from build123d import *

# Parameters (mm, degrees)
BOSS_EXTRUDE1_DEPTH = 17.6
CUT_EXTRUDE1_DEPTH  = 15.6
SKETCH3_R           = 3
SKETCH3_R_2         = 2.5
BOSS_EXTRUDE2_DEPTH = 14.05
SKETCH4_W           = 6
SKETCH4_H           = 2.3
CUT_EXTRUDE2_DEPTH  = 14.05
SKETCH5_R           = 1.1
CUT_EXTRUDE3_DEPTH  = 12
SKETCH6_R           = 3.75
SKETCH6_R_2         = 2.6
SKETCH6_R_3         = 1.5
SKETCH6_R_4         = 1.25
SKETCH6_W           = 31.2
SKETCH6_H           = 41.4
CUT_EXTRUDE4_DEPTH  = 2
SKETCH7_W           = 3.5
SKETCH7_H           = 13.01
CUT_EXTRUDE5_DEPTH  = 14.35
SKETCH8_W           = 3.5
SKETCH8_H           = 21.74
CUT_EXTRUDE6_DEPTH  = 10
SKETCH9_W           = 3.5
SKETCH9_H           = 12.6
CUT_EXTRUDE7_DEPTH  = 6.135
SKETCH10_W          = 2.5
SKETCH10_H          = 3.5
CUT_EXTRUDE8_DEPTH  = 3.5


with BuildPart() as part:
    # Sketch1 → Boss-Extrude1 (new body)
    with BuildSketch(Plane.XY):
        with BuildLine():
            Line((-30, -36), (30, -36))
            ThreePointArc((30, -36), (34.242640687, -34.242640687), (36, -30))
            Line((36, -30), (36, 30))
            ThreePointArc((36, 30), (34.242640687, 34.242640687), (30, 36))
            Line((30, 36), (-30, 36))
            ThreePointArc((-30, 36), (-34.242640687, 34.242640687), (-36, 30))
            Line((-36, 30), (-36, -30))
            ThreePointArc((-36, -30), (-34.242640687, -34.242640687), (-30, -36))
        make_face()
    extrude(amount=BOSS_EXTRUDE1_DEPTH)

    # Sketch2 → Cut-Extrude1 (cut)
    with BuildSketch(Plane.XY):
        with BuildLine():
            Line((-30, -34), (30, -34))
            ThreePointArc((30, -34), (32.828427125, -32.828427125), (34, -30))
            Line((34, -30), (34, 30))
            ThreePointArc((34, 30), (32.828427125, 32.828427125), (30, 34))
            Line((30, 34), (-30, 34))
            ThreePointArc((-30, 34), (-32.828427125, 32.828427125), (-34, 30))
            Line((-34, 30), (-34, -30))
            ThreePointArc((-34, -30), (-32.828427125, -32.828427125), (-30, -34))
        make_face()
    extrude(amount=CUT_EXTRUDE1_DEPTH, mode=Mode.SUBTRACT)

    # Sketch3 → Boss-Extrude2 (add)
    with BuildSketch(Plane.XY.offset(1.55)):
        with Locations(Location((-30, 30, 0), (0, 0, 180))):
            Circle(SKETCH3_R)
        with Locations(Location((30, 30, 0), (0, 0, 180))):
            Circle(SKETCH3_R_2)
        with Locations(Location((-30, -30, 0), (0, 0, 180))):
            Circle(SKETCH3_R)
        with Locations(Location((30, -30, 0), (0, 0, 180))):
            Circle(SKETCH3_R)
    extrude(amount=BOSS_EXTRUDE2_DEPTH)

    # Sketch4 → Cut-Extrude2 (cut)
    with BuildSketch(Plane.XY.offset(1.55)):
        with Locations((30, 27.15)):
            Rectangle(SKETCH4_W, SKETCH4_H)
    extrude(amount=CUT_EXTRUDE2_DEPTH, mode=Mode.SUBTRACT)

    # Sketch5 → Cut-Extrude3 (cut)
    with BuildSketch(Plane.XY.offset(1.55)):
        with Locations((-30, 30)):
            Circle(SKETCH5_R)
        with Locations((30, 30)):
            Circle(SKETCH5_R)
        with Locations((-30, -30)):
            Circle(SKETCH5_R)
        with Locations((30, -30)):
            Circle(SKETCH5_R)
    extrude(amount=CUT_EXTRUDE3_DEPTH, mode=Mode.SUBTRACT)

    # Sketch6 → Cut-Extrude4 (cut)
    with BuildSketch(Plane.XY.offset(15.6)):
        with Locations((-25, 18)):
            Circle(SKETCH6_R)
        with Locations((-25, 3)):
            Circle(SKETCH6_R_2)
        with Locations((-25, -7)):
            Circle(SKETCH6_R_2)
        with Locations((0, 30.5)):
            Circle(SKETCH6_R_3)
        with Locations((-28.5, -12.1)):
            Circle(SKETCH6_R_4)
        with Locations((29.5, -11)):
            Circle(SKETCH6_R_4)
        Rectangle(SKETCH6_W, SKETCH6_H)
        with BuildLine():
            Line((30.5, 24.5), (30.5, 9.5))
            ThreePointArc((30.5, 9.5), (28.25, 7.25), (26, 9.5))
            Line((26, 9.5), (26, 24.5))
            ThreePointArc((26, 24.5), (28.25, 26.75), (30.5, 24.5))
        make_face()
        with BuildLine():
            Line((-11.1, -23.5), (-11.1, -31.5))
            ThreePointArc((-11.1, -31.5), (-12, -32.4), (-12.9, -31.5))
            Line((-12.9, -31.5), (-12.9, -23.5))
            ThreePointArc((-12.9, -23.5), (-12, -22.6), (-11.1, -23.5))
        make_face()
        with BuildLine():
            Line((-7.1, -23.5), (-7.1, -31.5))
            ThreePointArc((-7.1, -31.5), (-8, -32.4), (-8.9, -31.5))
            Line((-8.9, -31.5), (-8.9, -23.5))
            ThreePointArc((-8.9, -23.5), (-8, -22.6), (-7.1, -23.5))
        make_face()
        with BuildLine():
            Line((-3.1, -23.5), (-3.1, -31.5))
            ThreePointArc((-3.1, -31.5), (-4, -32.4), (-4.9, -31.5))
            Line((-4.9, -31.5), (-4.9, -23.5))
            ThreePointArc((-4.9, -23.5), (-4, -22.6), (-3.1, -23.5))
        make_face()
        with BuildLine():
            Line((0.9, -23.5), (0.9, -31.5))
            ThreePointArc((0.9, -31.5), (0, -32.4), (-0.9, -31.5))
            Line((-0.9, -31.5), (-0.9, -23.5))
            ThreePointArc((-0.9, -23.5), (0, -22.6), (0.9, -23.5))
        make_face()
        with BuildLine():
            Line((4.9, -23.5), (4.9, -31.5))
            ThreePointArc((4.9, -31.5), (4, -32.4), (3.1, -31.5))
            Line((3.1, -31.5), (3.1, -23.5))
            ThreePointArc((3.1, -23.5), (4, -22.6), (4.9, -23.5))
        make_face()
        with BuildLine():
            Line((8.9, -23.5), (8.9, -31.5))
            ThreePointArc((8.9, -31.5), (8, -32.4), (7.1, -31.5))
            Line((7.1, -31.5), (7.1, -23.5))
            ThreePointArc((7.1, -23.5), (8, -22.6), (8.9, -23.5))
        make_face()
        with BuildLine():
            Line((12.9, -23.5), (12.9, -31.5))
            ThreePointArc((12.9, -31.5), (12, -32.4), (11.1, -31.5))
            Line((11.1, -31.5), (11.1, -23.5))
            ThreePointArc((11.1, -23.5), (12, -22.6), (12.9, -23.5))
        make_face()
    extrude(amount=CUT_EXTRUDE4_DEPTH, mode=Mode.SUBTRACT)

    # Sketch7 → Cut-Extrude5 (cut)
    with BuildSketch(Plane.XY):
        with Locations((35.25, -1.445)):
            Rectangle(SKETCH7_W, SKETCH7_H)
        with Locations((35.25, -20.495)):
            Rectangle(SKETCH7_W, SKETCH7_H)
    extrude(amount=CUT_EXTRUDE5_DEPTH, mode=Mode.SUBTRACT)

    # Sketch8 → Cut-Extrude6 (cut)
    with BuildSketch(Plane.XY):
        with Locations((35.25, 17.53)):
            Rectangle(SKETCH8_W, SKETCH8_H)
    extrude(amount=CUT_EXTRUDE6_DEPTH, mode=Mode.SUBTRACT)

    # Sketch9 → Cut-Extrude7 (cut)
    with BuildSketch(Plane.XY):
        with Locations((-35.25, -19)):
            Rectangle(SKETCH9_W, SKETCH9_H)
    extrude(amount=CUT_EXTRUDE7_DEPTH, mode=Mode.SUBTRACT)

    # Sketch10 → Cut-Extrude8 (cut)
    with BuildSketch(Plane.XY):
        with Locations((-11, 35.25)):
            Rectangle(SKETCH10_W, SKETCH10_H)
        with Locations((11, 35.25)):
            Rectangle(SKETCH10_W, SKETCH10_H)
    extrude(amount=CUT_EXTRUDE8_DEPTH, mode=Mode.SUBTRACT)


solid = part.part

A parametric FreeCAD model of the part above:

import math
import FreeCAD as App
import Part
import Sketcher
Q = App.Units.Quantity


def add_polygon(sketch, points):
    """Adds a closed chain of lines whose ends are joined by coincident constraints."""
    first, n = sketch.GeometryCount, len(points)
    for a, b in zip(points, points[1:] + points[:1]):
        sketch.addGeometry(Part.LineSegment(App.Vector(*a, 0), App.Vector(*b, 0)), False)
    for i in range(n):
        sketch.addConstraint(Sketcher.Constraint("Coincident", first + i, 2, first + (i + 1) % n, 1))

doc = App.newDocument("Part")
body = doc.addObject("PartDesign::Body", "Body")

# Sketch on XY plane
sketch1 = body.newObject("Sketcher::SketchObject", "Sketch")
sketch1.AttachmentSupport = (doc.getObject("XY_Plane"), [""])
sketch1.MapMode = "FlatFace"
sketch1.addGeometry([
    Part.LineSegment(App.Vector(-30, -36, 0), App.Vector(30, -36, 0)),  # 0
    Part.ArcOfCircle(Part.Circle(App.Vector(30, -30, 0), App.Vector(0, 0, 1), 6), math.radians(-90), math.radians(0)),  # 1
    Part.LineSegment(App.Vector(36, -30, 0), App.Vector(36, 30, 0)),  # 2
    Part.ArcOfCircle(Part.Circle(App.Vector(30, 30, 0), App.Vector(0, 0, 1), 6), math.radians(0), math.radians(90)),  # 3
    Part.LineSegment(App.Vector(30, 36, 0), App.Vector(-30, 36, 0)),  # 4
    Part.ArcOfCircle(Part.Circle(App.Vector(-30, 30, 0), App.Vector(0, 0, 1), 6), math.radians(90), math.radians(180)),  # 5
    Part.LineSegment(App.Vector(-36, 30, 0), App.Vector(-36, -30, 0)),  # 6
    Part.ArcOfCircle(Part.Circle(App.Vector(-30, -30, 0), App.Vector(0, 0, 1), 6), math.radians(180), math.radians(270)),  # 7
], False)
sketch1.addConstraint([
    Sketcher.Constraint("Tangent", 0, 2, 1, 1),
    Sketcher.Constraint("Tangent", 1, 2, 2, 1),
    Sketcher.Constraint("Tangent", 2, 2, 3, 1),
    Sketcher.Constraint("Tangent", 3, 2, 4, 1),
    Sketcher.Constraint("Tangent", 4, 2, 5, 1),
    Sketcher.Constraint("Tangent", 5, 2, 6, 1),
    Sketcher.Constraint("Tangent", 6, 2, 7, 1),
    Sketcher.Constraint("Tangent", 7, 2, 0, 1),
    Sketcher.Constraint("Horizontal", 0),
    Sketcher.Constraint("Vertical", 2),
    Sketcher.Constraint("Horizontal", 4),
    Sketcher.Constraint("Vertical", 6),
    Sketcher.Constraint("Equal", 1, 3),
    Sketcher.Constraint("Equal", 3, 5),
    Sketcher.Constraint("Equal", 5, 7),
    Sketcher.Constraint("Symmetric", 1, 3, 5, 3, -1, 1),
    Sketcher.Constraint("Equal", 4, 2),
    Sketcher.Constraint("Radius", 1, Q("6 mm")),
    Sketcher.Constraint("DistanceX", 0, 1, 0, 2, Q("60 mm")),
])
pad1 = body.newObject("PartDesign::Pad", "Pad")
pad1.Profile = sketch1
pad1.Length = 17.6

# Sketch on XY plane
sketch2 = body.newObject("Sketcher::SketchObject", "Sketch001")
sketch2.AttachmentSupport = (doc.getObject("XY_Plane"), [""])
sketch2.MapMode = "FlatFace"
sketch2.addGeometry([
    Part.LineSegment(App.Vector(-30, -34, 0), App.Vector(30, -34, 0)),  # 0
    Part.ArcOfCircle(Part.Circle(App.Vector(30, -30, 0), App.Vector(0, 0, 1), 4), math.radians(-90), math.radians(0)),  # 1
    Part.LineSegment(App.Vector(34, -30, 0), App.Vector(34, 30, 0)),  # 2
    Part.ArcOfCircle(Part.Circle(App.Vector(30, 30, 0), App.Vector(0, 0, 1), 4), math.radians(0), math.radians(90)),  # 3
    Part.LineSegment(App.Vector(30, 34, 0), App.Vector(-30, 34, 0)),  # 4
    Part.ArcOfCircle(Part.Circle(App.Vector(-30, 30, 0), App.Vector(0, 0, 1), 4), math.radians(90), math.radians(180)),  # 5
    Part.LineSegment(App.Vector(-34, 30, 0), App.Vector(-34, -30, 0)),  # 6
    Part.ArcOfCircle(Part.Circle(App.Vector(-30, -30, 0), App.Vector(0, 0, 1), 4), math.radians(180), math.radians(270)),  # 7
], False)
sketch2.addConstraint([
    Sketcher.Constraint("Tangent", 0, 2, 1, 1),
    Sketcher.Constraint("Tangent", 1, 2, 2, 1),
    Sketcher.Constraint("Tangent", 2, 2, 3, 1),
    Sketcher.Constraint("Tangent", 3, 2, 4, 1),
    Sketcher.Constraint("Tangent", 4, 2, 5, 1),
    Sketcher.Constraint("Tangent", 5, 2, 6, 1),
    Sketcher.Constraint("Tangent", 6, 2, 7, 1),
    Sketcher.Constraint("Tangent", 7, 2, 0, 1),
    Sketcher.Constraint("Horizontal", 0),
    Sketcher.Constraint("Vertical", 2),
    Sketcher.Constraint("Horizontal", 4),
    Sketcher.Constraint("Vertical", 6),
    Sketcher.Constraint("Equal", 1, 3),
    Sketcher.Constraint("Equal", 3, 5),
    Sketcher.Constraint("Equal", 5, 7),
    Sketcher.Constraint("Symmetric", 1, 3, 5, 3, -1, 1),
    Sketcher.Constraint("Equal", 4, 2),
    Sketcher.Constraint("Radius", 1, Q("4 mm")),
    Sketcher.Constraint("DistanceX", 0, 1, 0, 2, Q("60 mm")),
])
pocket1 = body.newObject("PartDesign::Pocket", "Pocket")
pocket1.Profile = sketch2
pocket1.Length = 15.6
pocket1.Reversed = True

# Sketch on XY plane
sketch3 = body.newObject("Sketcher::SketchObject", "Sketch002")
sketch3.AttachmentSupport = (doc.getObject("XY_Plane"), [""])
sketch3.MapMode = "FlatFace"
sketch3.AttachmentOffset = App.Placement(App.Vector(0, 0, 1.55), App.Rotation())
sketch3.addGeometry([
    Part.Circle(App.Vector(-30, 30, 0), App.Vector(0, 0, 1), 3),
    Part.Circle(App.Vector(30, 30, 0), App.Vector(0, 0, 1), 2.5),
    Part.Circle(App.Vector(-30, -30, 0), App.Vector(0, 0, 1), 3),
    Part.Circle(App.Vector(30, -30, 0), App.Vector(0, 0, 1), 3),
], False)
sketch3.addConstraint([
    Sketcher.Constraint("Equal", 0, 2),
    Sketcher.Constraint("Equal", 2, 3),
    Sketcher.Constraint("Symmetric", 1, 3, 2, 3, -1, 1),
    Sketcher.Constraint("Symmetric", 0, 3, 3, 3, -1, 1),
    Sketcher.Constraint("Symmetric", 0, 3, 1, 3, -2),
    Sketcher.Constraint("Diameter", 0, Q("6 mm")),
    Sketcher.Constraint("Diameter", 1, Q("5 mm")),
    Sketcher.Constraint("DistanceX", 0, 3, -1, 1, Q("30 mm")),
    Sketcher.Constraint("DistanceY", -1, 1, 0, 3, Q("30 mm")),
])
pad2 = body.newObject("PartDesign::Pad", "Pad001")
pad2.Profile = sketch3
pad2.Length = 14.05

# Sketch on XY plane
sketch4 = body.newObject("Sketcher::SketchObject", "Sketch003")
sketch4.AttachmentSupport = (doc.getObject("XY_Plane"), [""])
sketch4.MapMode = "FlatFace"
sketch4.AttachmentOffset = App.Placement(App.Vector(0, 0, 1.55), App.Rotation())
add_polygon(sketch4, [(27, 28.3), (27, 26), (33, 26), (33, 28.3)])  # lines 0-3
sketch4.addConstraint([
    Sketcher.Constraint("Vertical", 0),
    Sketcher.Constraint("Horizontal", 1),
    Sketcher.Constraint("Vertical", 2),
    Sketcher.Constraint("Horizontal", 3),
    Sketcher.Constraint("DistanceX", 1, 1, 1, 2, Q("6 mm")),
    Sketcher.Constraint("DistanceY", 0, 2, 0, 1, Q("2.3 mm")),
    Sketcher.Constraint("DistanceX", -1, 1, 0, 2, Q("27 mm")),
    Sketcher.Constraint("DistanceY", -1, 1, 0, 2, Q("26 mm")),
])
pocket2 = body.newObject("PartDesign::Pocket", "Pocket001")
pocket2.Profile = sketch4
pocket2.Length = 14.05
pocket2.Reversed = True

# Sketch on XY plane
sketch5 = body.newObject("Sketcher::SketchObject", "Sketch004")
sketch5.AttachmentSupport = (doc.getObject("XY_Plane"), [""])
sketch5.MapMode = "FlatFace"
sketch5.AttachmentOffset = App.Placement(App.Vector(0, 0, 1.55), App.Rotation())
sketch5.addGeometry([
    Part.Circle(App.Vector(-30, 30, 0), App.Vector(0, 0, 1), 1.1),
    Part.Circle(App.Vector(30, 30, 0), App.Vector(0, 0, 1), 1.1),
    Part.Circle(App.Vector(-30, -30, 0), App.Vector(0, 0, 1), 1.1),
    Part.Circle(App.Vector(30, -30, 0), App.Vector(0, 0, 1), 1.1),
], False)
sketch5.addConstraint([
    Sketcher.Constraint("Equal", 0, 1),
    Sketcher.Constraint("Equal", 1, 2),
    Sketcher.Constraint("Equal", 2, 3),
    Sketcher.Constraint("Symmetric", 1, 3, 2, 3, -1, 1),
    Sketcher.Constraint("Symmetric", 0, 3, 3, 3, -1, 1),
    Sketcher.Constraint("Symmetric", 0, 3, 1, 3, -2),
    Sketcher.Constraint("Diameter", 0, Q("2.2 mm")),
    Sketcher.Constraint("DistanceX", 0, 3, -1, 1, Q("30 mm")),
    Sketcher.Constraint("DistanceY", -1, 1, 0, 3, Q("30 mm")),
])
pocket3 = body.newObject("PartDesign::Pocket", "Pocket002")
pocket3.Profile = sketch5
pocket3.Length = 12
pocket3.Reversed = True

# Sketch on XY plane
sketch6 = body.newObject("Sketcher::SketchObject", "Sketch005")
sketch6.AttachmentSupport = (doc.getObject("XY_Plane"), [""])
sketch6.MapMode = "FlatFace"
sketch6.AttachmentOffset = App.Placement(App.Vector(0, 0, 15.6), App.Rotation())
sketch6.addGeometry(Part.Circle(App.Vector(-25, 18, 0), App.Vector(0, 0, 1), 3.75), False)  # 0
sketch6.addGeometry(Part.Circle(App.Vector(-25, 3, 0), App.Vector(0, 0, 1), 2.6), False)  # 1
sketch6.addGeometry(Part.Circle(App.Vector(-25, -7, 0), App.Vector(0, 0, 1), 2.6), False)  # 2
sketch6.addGeometry(Part.Circle(App.Vector(0, 30.5, 0), App.Vector(0, 0, 1), 1.5), False)  # 3
sketch6.addGeometry(Part.Circle(App.Vector(-28.5, -12.1, 0), App.Vector(0, 0, 1), 1.25), False)  # 4
sketch6.addGeometry(Part.Circle(App.Vector(29.5, -11, 0), App.Vector(0, 0, 1), 1.25), False)  # 5
add_polygon(sketch6, [(-15.6, 20.7), (-15.6, -20.7), (15.6, -20.7), (15.6, 20.7)])  # lines 6-9
sketch6.addGeometry(Part.LineSegment(App.Vector(30.5, 9.5, 0), App.Vector(30.5, 24.5, 0)), False)  # 10
sketch6.addGeometry(Part.ArcOfCircle(Part.Circle(App.Vector(28.25, 24.5, 0), App.Vector(0, 0, 1), 2.25), math.radians(0), math.radians(180)), False)  # 11
sketch6.addGeometry(Part.LineSegment(App.Vector(26, 24.5, 0), App.Vector(26, 9.5, 0)), False)  # 12
sketch6.addGeometry(Part.ArcOfCircle(Part.Circle(App.Vector(28.25, 9.5, 0), App.Vector(0, 0, 1), 2.25), math.radians(180), math.radians(360)), False)  # 13
sketch6.addGeometry(Part.LineSegment(App.Vector(-11.1, -31.5, 0), App.Vector(-11.1, -23.5, 0)), False)  # 14
sketch6.addGeometry(Part.ArcOfCircle(Part.Circle(App.Vector(-12, -23.5, 0), App.Vector(0, 0, 1), 0.9), math.radians(0), math.radians(180)), False)  # 15
sketch6.addGeometry(Part.LineSegment(App.Vector(-12.9, -23.5, 0), App.Vector(-12.9, -31.5, 0)), False)  # 16
sketch6.addGeometry(Part.ArcOfCircle(Part.Circle(App.Vector(-12, -31.5, 0), App.Vector(0, 0, 1), 0.9), math.radians(180), math.radians(360)), False)  # 17
sketch6.addGeometry(Part.LineSegment(App.Vector(-7.1, -31.5, 0), App.Vector(-7.1, -23.5, 0)), False)  # 18
sketch6.addGeometry(Part.ArcOfCircle(Part.Circle(App.Vector(-8, -23.5, 0), App.Vector(0, 0, 1), 0.9), math.radians(0), math.radians(180)), False)  # 19
sketch6.addGeometry(Part.LineSegment(App.Vector(-8.9, -23.5, 0), App.Vector(-8.9, -31.5, 0)), False)  # 20
sketch6.addGeometry(Part.ArcOfCircle(Part.Circle(App.Vector(-8, -31.5, 0), App.Vector(0, 0, 1), 0.9), math.radians(180), math.radians(360)), False)  # 21
sketch6.addGeometry(Part.LineSegment(App.Vector(-3.1, -31.5, 0), App.Vector(-3.1, -23.5, 0)), False)  # 22
sketch6.addGeometry(Part.ArcOfCircle(Part.Circle(App.Vector(-4, -23.5, 0), App.Vector(0, 0, 1), 0.9), math.radians(0), math.radians(180)), False)  # 23
sketch6.addGeometry(Part.LineSegment(App.Vector(-4.9, -23.5, 0), App.Vector(-4.9, -31.5, 0)), False)  # 24
sketch6.addGeometry(Part.ArcOfCircle(Part.Circle(App.Vector(-4, -31.5, 0), App.Vector(0, 0, 1), 0.9), math.radians(180), math.radians(360)), False)  # 25
sketch6.addGeometry(Part.LineSegment(App.Vector(0.9, -31.5, 0), App.Vector(0.9, -23.5, 0)), False)  # 26
sketch6.addGeometry(Part.ArcOfCircle(Part.Circle(App.Vector(0, -23.5, 0), App.Vector(0, 0, 1), 0.9), math.radians(0), math.radians(180)), False)  # 27
sketch6.addGeometry(Part.LineSegment(App.Vector(-0.9, -23.5, 0), App.Vector(-0.9, -31.5, 0)), False)  # 28
sketch6.addGeometry(Part.ArcOfCircle(Part.Circle(App.Vector(0, -31.5, 0), App.Vector(0, 0, 1), 0.9), math.radians(180), math.radians(360)), False)  # 29
sketch6.addGeometry(Part.LineSegment(App.Vector(4.9, -31.5, 0), App.Vector(4.9, -23.5, 0)), False)  # 30
sketch6.addGeometry(Part.ArcOfCircle(Part.Circle(App.Vector(4, -23.5, 0), App.Vector(0, 0, 1), 0.9), math.radians(0), math.radians(180)), False)  # 31
sketch6.addGeometry(Part.LineSegment(App.Vector(3.1, -23.5, 0), App.Vector(3.1, -31.5, 0)), False)  # 32
sketch6.addGeometry(Part.ArcOfCircle(Part.Circle(App.Vector(4, -31.5, 0), App.Vector(0, 0, 1), 0.9), math.radians(180), math.radians(360)), False)  # 33
sketch6.addGeometry(Part.LineSegment(App.Vector(8.9, -31.5, 0), App.Vector(8.9, -23.5, 0)), False)  # 34
sketch6.addGeometry(Part.ArcOfCircle(Part.Circle(App.Vector(8, -23.5, 0), App.Vector(0, 0, 1), 0.9), math.radians(0), math.radians(180)), False)  # 35
sketch6.addGeometry(Part.LineSegment(App.Vector(7.1, -23.5, 0), App.Vector(7.1, -31.5, 0)), False)  # 36
sketch6.addGeometry(Part.ArcOfCircle(Part.Circle(App.Vector(8, -31.5, 0), App.Vector(0, 0, 1), 0.9), math.radians(180), math.radians(360)), False)  # 37
sketch6.addGeometry(Part.LineSegment(App.Vector(12.9, -31.5, 0), App.Vector(12.9, -23.5, 0)), False)  # 38
sketch6.addGeometry(Part.ArcOfCircle(Part.Circle(App.Vector(12, -23.5, 0), App.Vector(0, 0, 1), 0.9), math.radians(0), math.radians(180)), False)  # 39
sketch6.addGeometry(Part.LineSegment(App.Vector(11.1, -23.5, 0), App.Vector(11.1, -31.5, 0)), False)  # 40
sketch6.addGeometry(Part.ArcOfCircle(Part.Circle(App.Vector(12, -31.5, 0), App.Vector(0, 0, 1), 0.9), math.radians(180), math.radians(360)), False)  # 41
sketch6.addConstraint([
    Sketcher.Constraint("Tangent", 10, 2, 11, 1),
    Sketcher.Constraint("Tangent", 11, 2, 12, 1),
    Sketcher.Constraint("Tangent", 12, 2, 13, 1),
    Sketcher.Constraint("Tangent", 13, 2, 10, 1),
    Sketcher.Constraint("Tangent", 14, 2, 15, 1),
    Sketcher.Constraint("Tangent", 15, 2, 16, 1),
    Sketcher.Constraint("Tangent", 16, 2, 17, 1),
    Sketcher.Constraint("Tangent", 17, 2, 14, 1),
    Sketcher.Constraint("Tangent", 18, 2, 19, 1),
    Sketcher.Constraint("Tangent", 19, 2, 20, 1),
    Sketcher.Constraint("Tangent", 20, 2, 21, 1),
    Sketcher.Constraint("Tangent", 21, 2, 18, 1),
    Sketcher.Constraint("Tangent", 22, 2, 23, 1),
    Sketcher.Constraint("Tangent", 23, 2, 24, 1),
    Sketcher.Constraint("Tangent", 24, 2, 25, 1),
    Sketcher.Constraint("Tangent", 25, 2, 22, 1),
    Sketcher.Constraint("Tangent", 26, 2, 27, 1),
    Sketcher.Constraint("Tangent", 27, 2, 28, 1),
    Sketcher.Constraint("Tangent", 28, 2, 29, 1),
    Sketcher.Constraint("Tangent", 29, 2, 26, 1),
    Sketcher.Constraint("Tangent", 30, 2, 31, 1),
    Sketcher.Constraint("Tangent", 31, 2, 32, 1),
    Sketcher.Constraint("Tangent", 32, 2, 33, 1),
    Sketcher.Constraint("Tangent", 33, 2, 30, 1),
    Sketcher.Constraint("Tangent", 34, 2, 35, 1),
    Sketcher.Constraint("Tangent", 35, 2, 36, 1),
    Sketcher.Constraint("Tangent", 36, 2, 37, 1),
    Sketcher.Constraint("Tangent", 37, 2, 34, 1),
    Sketcher.Constraint("Tangent", 38, 2, 39, 1),
    Sketcher.Constraint("Tangent", 39, 2, 40, 1),
    Sketcher.Constraint("Tangent", 40, 2, 41, 1),
    Sketcher.Constraint("Tangent", 41, 2, 38, 1),
    Sketcher.Constraint("Vertical", 6),
    Sketcher.Constraint("Horizontal", 7),
    Sketcher.Constraint("Vertical", 8),
    Sketcher.Constraint("Horizontal", 9),
    Sketcher.Constraint("Vertical", 10),
    Sketcher.Constraint("Vertical", 12),
    Sketcher.Constraint("Vertical", 14),
    Sketcher.Constraint("Vertical", 16),
    Sketcher.Constraint("Vertical", 18),
    Sketcher.Constraint("Vertical", 20),
    Sketcher.Constraint("Vertical", 22),
    Sketcher.Constraint("Vertical", 24),
    Sketcher.Constraint("Vertical", 26),
    Sketcher.Constraint("Vertical", 28),
    Sketcher.Constraint("Vertical", 30),
    Sketcher.Constraint("Vertical", 32),
    Sketcher.Constraint("Vertical", 34),
    Sketcher.Constraint("Vertical", 36),
    Sketcher.Constraint("Vertical", 38),
    Sketcher.Constraint("Vertical", 40),
    Sketcher.Constraint("Equal", 1, 2),
    Sketcher.Constraint("Equal", 4, 5),
    Sketcher.Constraint("Equal", 17, 19),
    Sketcher.Constraint("Equal", 21, 23),
    Sketcher.Constraint("Equal", 25, 27),
    Sketcher.Constraint("Equal", 29, 31),
    Sketcher.Constraint("Equal", 33, 35),
    Sketcher.Constraint("Equal", 37, 39),
    Sketcher.Constraint("Symmetric", 6, 2, 8, 2, -1, 1),
    Sketcher.Constraint("Symmetric", 23, 3, 31, 3, -2),
    Sketcher.Constraint("Symmetric", 19, 3, 35, 3, -2),
    Sketcher.Constraint("Symmetric", 15, 3, 39, 3, -2),
    Sketcher.Constraint("PointOnObject", 3, 3, -2),
    Sketcher.Constraint("PointOnObject", 27, 3, -2),
    Sketcher.Constraint("Horizontal", 15, 3, 19, 3),
    Sketcher.Constraint("Horizontal", 17, 3, 21, 3),
    Sketcher.Constraint("Horizontal", 19, 3, 23, 3),
    Sketcher.Constraint("Horizontal", 21, 3, 25, 3),
    Sketcher.Constraint("Horizontal", 23, 3, 27, 3),
    Sketcher.Constraint("Horizontal", 25, 3, 29, 3),
    Sketcher.Constraint("Horizontal", 29, 3, 33, 3),
    Sketcher.Constraint("Horizontal", 33, 3, 37, 3),
    Sketcher.Constraint("Horizontal", 37, 3, 41, 3),
    Sketcher.Constraint("Vertical", 0, 3, 1, 3),
    Sketcher.Constraint("Vertical", 1, 3, 2, 3),
    Sketcher.Constraint("Diameter", 3, Q("3 mm")),
    Sketcher.Constraint("Diameter", 0, Q("7.5 mm")),
    Sketcher.Constraint("Diameter", 1, Q("5.2 mm")),
    Sketcher.Constraint("Diameter", 4, Q("2.5 mm")),
    Sketcher.Constraint("Radius", 15, Q("0.9 mm")),
    Sketcher.Constraint("DistanceY", 10, 1, 10, 2, Q("15 mm")),
    Sketcher.Constraint("DistanceY", 14, 1, 14, 2, Q("8 mm")),
    Sketcher.Constraint("Radius", 11, Q("2.25 mm")),
    Sketcher.Constraint("DistanceX", 7, 1, 7, 2, Q("31.2 mm")),
    Sketcher.Constraint("DistanceY", 6, 2, 6, 1, Q("41.4 mm")),
    Sketcher.Constraint("DistanceX", 0, 3, -1, 1, Q("25 mm")),
    Sketcher.Constraint("DistanceY", -1, 1, 0, 3, Q("18 mm")),
    Sketcher.Constraint("DistanceY", -1, 1, 1, 3, Q("3 mm")),
    Sketcher.Constraint("DistanceY", 2, 3, -1, 1, Q("7 mm")),
    Sketcher.Constraint("DistanceY", 5, 3, -1, 1, Q("11 mm")),
    Sketcher.Constraint("DistanceX", 15, 3, -1, 1, Q("12 mm")),
    Sketcher.Constraint("DistanceX", 19, 3, -1, 1, Q("8 mm")),
    Sketcher.Constraint("DistanceX", 23, 3, -1, 1, Q("4 mm")),
    Sketcher.Constraint("DistanceX", -1, 1, 11, 2, Q("26 mm")),
    Sketcher.Constraint("DistanceX", 4, 3, 5, 3, Q("58 mm")),
    Sketcher.Constraint("DistanceY", 11, 3, 3, 3, Q("6 mm")),
    Sketcher.Constraint("DistanceX", 5, 3, 10, 2, Q("1 mm")),
    Sketcher.Constraint("DistanceY", -1, 1, 3, 3, Q("30.5 mm")),
    Sketcher.Constraint("DistanceY", 4, 3, -1, 1, Q("12.1 mm")),
    Sketcher.Constraint("DistanceY", 15, 3, -1, 1, Q("23.5 mm")),
])
pocket4 = body.newObject("PartDesign::Pocket", "Pocket003")
pocket4.Profile = sketch6
pocket4.Length = 2
pocket4.Reversed = True

# Sketch on XY plane
sketch7 = body.newObject("Sketcher::SketchObject", "Sketch006")
sketch7.AttachmentSupport = (doc.getObject("XY_Plane"), [""])
sketch7.MapMode = "FlatFace"
add_polygon(sketch7, [(33.5, 5.06), (33.5, -7.95), (37, -7.95), (37, 5.06)])  # lines 0-3
add_polygon(sketch7, [(33.5, -13.99), (33.5, -27), (37, -27), (37, -13.99)])  # lines 4-7
sketch7.addConstraint([
    Sketcher.Constraint("Vertical", 0),
    Sketcher.Constraint("Horizontal", 1),
    Sketcher.Constraint("Vertical", 2),
    Sketcher.Constraint("Horizontal", 3),
    Sketcher.Constraint("Vertical", 4),
    Sketcher.Constraint("Horizontal", 5),
    Sketcher.Constraint("Vertical", 6),
    Sketcher.Constraint("Horizontal", 7),
    Sketcher.Constraint("Vertical", 3, 2, 4, 2),
    Sketcher.Constraint("Vertical", 2, 2, 5, 2),
    Sketcher.Constraint("Equal", 2, 4),
    Sketcher.Constraint("DistanceX", 1, 1, 1, 2, Q("3.5 mm")),
    Sketcher.Constraint("DistanceX", -1, 1, 1, 2, Q("37 mm")),
    Sketcher.Constraint("DistanceY", 4, 2, -1, 1, Q("27 mm")),
    Sketcher.Constraint("DistanceY", 0, 2, 0, 1, Q("13.01 mm")),
    Sketcher.Constraint("DistanceY", 0, 2, -1, 1, Q("7.95 mm")),
])
pocket5 = body.newObject("PartDesign::Pocket", "Pocket004")
pocket5.Profile = sketch7
pocket5.Length = 14.35
pocket5.Reversed = True

# Sketch on XY plane
sketch8 = body.newObject("Sketcher::SketchObject", "Sketch007")
sketch8.AttachmentSupport = (doc.getObject("XY_Plane"), [""])
sketch8.MapMode = "FlatFace"
add_polygon(sketch8, [(33.5, 28.4), (33.5, 6.66), (37, 6.66), (37, 28.4)])  # lines 0-3
sketch8.addConstraint([
    Sketcher.Constraint("Vertical", 0),
    Sketcher.Constraint("Horizontal", 1),
    Sketcher.Constraint("Vertical", 2),
    Sketcher.Constraint("Horizontal", 3),
    Sketcher.Constraint("DistanceX", 1, 1, 1, 2, Q("3.5 mm")),
    Sketcher.Constraint("DistanceX", -1, 1, 1, 2, Q("37 mm")),
    Sketcher.Constraint("DistanceY", 0, 2, 0, 1, Q("21.74 mm")),
    Sketcher.Constraint("DistanceY", -1, 1, 2, 2, Q("28.4 mm")),
])
pocket6 = body.newObject("PartDesign::Pocket", "Pocket005")
pocket6.Profile = sketch8
pocket6.Length = 10
pocket6.Reversed = True

# Sketch on XY plane
sketch9 = body.newObject("Sketcher::SketchObject", "Sketch008")
sketch9.AttachmentSupport = (doc.getObject("XY_Plane"), [""])
sketch9.MapMode = "FlatFace"
add_polygon(sketch9, [(-37, -12.7), (-37, -25.3), (-33.5, -25.3), (-33.5, -12.7)])  # lines 0-3
sketch9.addConstraint([
    Sketcher.Constraint("Vertical", 0),
    Sketcher.Constraint("Horizontal", 1),
    Sketcher.Constraint("Vertical", 2),
    Sketcher.Constraint("Horizontal", 3),
    Sketcher.Constraint("DistanceX", 1, 1, 1, 2, Q("3.5 mm")),
    Sketcher.Constraint("DistanceY", 0, 2, 0, 1, Q("12.6 mm")),
    Sketcher.Constraint("DistanceX", 0, 2, -1, 1, Q("37 mm")),
    Sketcher.Constraint("DistanceY", 0, 2, -1, 1, Q("25.3 mm")),
])
pocket7 = body.newObject("PartDesign::Pocket", "Pocket006")
pocket7.Profile = sketch9
pocket7.Length = 6.135
pocket7.Reversed = True

# Sketch on XY plane
sketch10 = body.newObject("Sketcher::SketchObject", "Sketch009")
sketch10.AttachmentSupport = (doc.getObject("XY_Plane"), [""])
sketch10.MapMode = "FlatFace"
add_polygon(sketch10, [(-12.25, 37), (-12.25, 33.5), (-9.75, 33.5), (-9.75, 37)])  # lines 0-3
add_polygon(sketch10, [(9.75, 37), (9.75, 33.5), (12.25, 33.5), (12.25, 37)])  # lines 4-7
sketch10.addConstraint([
    Sketcher.Constraint("Vertical", 0),
    Sketcher.Constraint("Horizontal", 1),
    Sketcher.Constraint("Vertical", 2),
    Sketcher.Constraint("Horizontal", 3),
    Sketcher.Constraint("Vertical", 4),
    Sketcher.Constraint("Horizontal", 5),
    Sketcher.Constraint("Vertical", 6),
    Sketcher.Constraint("Horizontal", 7),
    Sketcher.Constraint("Symmetric", 1, 2, 4, 2, -2),
    Sketcher.Constraint("Symmetric", 3, 2, 6, 2, -2),
    Sketcher.Constraint("DistanceX", 1, 1, 1, 2, Q("2.5 mm")),
    Sketcher.Constraint("DistanceY", 0, 2, 0, 1, Q("3.5 mm")),
    Sketcher.Constraint("DistanceY", -1, 1, 2, 2, Q("37 mm")),
    Sketcher.Constraint("DistanceX", 0, 2, 4, 2, Q("22 mm")),
])
pocket8 = body.newObject("PartDesign::Pocket", "Pocket007")
pocket8.Profile = sketch10
pocket8.Length = 3.5
pocket8.Reversed = True

doc.recompute()
